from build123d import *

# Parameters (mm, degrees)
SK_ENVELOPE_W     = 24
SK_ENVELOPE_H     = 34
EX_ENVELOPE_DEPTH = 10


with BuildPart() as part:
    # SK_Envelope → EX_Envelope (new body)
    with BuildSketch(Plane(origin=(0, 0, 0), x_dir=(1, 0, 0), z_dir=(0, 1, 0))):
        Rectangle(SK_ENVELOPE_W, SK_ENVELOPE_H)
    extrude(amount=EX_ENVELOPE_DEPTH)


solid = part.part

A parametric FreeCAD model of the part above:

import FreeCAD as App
import Part
import Sketcher

V = App.Vector
Q = App.Units.Quantity

doc = App.newDocument("Part")
params = doc.addObject("Spreadsheet::Sheet", "Params")
for row, (alias, value) in enumerate([
    ("sketch1_width", "24 mm"),
    ("sketch1_height", "34 mm"),
    ("pad1_length", "10 mm"),
], start=1):
    params.set(f"A{row}", alias)
    params.set(f"B{row}", "=" + value)
    params.setAlias(f"B{row}", alias)

body = doc.addObject("PartDesign::Body", "Body")

# Sketch on XZ plane
sketch1 = doc.addObject("Sketcher::SketchObject", "Sketch")
body.addObject(sketch1)
sketch1.AttachmentSupport = (doc.XZ_Plane, [""])
sketch1.MapMode = "FlatFace"
sketch1.addGeometry([
    Part.LineSegment(V(-12, -17, 0), V(-12, 17, 0)),
    Part.LineSegment(V(-12, 17, 0), V(12, 17, 0)),
    Part.LineSegment(V(12, 17, 0), V(12, -17, 0)),
    Part.LineSegment(V(12, -17, 0), V(-12, -17, 0)),
], False)
sketch1.addConstraint([
    Sketcher.Constraint("Coincident", 0, 2, 1, 1),
    Sketcher.Constraint("Coincident", 1, 2, 2, 1),
    Sketcher.Constraint("Coincident", 2, 2, 3, 1),
    Sketcher.Constraint("Coincident", 3, 2, 0, 1),
    Sketcher.Constraint("Vertical", 0),
    Sketcher.Constraint("Horizontal", 1),
    Sketcher.Constraint("Vertical", 2),
    Sketcher.Constraint("Horizontal", 3),
    Sketcher.Constraint("Symmetric", 0, 2, 2, 2, -1, 1),
    Sketcher.Constraint("DistanceX", 1, 1, 1, 2, Q("24 mm")),
    Sketcher.Constraint("DistanceY", 0, 1, 0, 2, Q("34 mm")),
])
sketch1.setExpression("Constraints[9]", "Params.sketch1_width")
sketch1.setExpression("Constraints[10]", "Params.sketch1_height")
pad1 = doc.addObject("PartDesign::Pad", "Pad")
body.addObject(pad1)
pad1.Profile = sketch1
pad1.setExpression("Length", "Params.pad1_length")
pad1.Reversed = True

doc.recompute()
